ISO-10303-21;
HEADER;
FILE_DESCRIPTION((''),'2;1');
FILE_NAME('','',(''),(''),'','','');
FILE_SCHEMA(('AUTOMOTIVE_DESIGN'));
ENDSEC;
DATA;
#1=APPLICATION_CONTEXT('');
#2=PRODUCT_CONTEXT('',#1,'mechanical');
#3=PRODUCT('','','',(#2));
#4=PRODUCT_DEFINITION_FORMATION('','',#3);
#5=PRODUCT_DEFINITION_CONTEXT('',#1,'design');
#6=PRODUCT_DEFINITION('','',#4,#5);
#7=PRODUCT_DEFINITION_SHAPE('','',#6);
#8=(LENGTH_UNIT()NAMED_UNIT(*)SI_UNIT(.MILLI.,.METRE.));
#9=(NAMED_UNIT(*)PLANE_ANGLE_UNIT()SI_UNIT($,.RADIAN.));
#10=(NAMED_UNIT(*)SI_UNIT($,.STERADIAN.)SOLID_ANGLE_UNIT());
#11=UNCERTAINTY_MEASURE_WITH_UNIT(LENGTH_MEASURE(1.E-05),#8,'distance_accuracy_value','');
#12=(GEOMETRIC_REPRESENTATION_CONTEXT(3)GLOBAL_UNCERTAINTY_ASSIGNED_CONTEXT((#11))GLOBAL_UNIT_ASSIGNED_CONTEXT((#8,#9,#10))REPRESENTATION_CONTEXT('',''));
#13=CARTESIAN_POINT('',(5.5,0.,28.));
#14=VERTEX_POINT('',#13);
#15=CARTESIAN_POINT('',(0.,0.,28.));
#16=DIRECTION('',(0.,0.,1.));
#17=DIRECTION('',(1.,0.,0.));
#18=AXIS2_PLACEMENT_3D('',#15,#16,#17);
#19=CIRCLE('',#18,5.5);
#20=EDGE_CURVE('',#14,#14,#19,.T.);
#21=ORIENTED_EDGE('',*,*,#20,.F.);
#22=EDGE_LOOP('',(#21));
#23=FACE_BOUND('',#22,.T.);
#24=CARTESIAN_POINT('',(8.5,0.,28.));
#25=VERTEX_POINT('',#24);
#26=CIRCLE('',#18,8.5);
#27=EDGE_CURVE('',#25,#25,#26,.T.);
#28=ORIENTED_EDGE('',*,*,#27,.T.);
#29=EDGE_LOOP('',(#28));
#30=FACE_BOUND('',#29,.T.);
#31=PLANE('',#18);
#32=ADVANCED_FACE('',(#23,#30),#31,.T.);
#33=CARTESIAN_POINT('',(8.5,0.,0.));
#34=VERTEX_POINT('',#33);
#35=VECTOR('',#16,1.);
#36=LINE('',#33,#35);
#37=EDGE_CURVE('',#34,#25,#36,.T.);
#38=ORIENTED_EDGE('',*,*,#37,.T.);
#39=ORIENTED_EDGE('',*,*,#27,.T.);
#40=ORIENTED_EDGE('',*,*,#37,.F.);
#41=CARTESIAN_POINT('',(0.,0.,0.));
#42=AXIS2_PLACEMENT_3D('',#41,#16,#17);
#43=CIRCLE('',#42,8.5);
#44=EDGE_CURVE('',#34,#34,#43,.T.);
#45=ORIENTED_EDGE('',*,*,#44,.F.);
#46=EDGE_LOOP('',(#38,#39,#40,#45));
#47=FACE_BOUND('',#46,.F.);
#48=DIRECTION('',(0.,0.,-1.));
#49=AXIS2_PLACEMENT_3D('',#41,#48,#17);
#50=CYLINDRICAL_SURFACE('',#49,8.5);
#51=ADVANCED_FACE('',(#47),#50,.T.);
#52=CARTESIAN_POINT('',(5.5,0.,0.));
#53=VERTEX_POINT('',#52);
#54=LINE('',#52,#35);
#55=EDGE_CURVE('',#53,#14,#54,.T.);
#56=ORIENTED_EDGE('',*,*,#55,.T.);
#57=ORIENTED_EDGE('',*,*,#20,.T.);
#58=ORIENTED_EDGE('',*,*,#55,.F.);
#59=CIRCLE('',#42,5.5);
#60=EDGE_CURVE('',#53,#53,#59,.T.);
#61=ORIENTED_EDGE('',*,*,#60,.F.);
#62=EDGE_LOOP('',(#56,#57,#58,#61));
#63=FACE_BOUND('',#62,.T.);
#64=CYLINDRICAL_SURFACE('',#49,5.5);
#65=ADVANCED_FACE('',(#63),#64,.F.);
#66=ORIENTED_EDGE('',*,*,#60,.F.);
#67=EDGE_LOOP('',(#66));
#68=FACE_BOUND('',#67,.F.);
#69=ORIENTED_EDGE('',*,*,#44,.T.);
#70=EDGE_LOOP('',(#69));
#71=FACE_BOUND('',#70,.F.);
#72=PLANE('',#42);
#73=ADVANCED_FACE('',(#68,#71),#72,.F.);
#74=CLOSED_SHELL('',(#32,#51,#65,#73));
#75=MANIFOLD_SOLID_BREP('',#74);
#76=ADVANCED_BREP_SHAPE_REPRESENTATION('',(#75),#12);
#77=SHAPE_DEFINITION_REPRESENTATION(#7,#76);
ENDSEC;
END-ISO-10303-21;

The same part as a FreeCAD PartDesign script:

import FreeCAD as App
import Part
import Sketcher

V = App.Vector

doc = App.newDocument("Part")
body = doc.addObject("PartDesign::Body", "Body")

# Sketch on XY plane
sketch1 = body.newObject("Sketcher::SketchObject", "Sketch")
sketch1.AttachmentSupport = (doc.getObject("XY_Plane"), [""])
sketch1.MapMode = "FlatFace"
sketch1.addGeometry([
    Part.Circle(V(0, 0, 0), V(0, 0, 1), 8),
    Part.Circle(V(0, 0, 0), V(0, 0, 1), 6),
], False)
sketch1.addConstraint([
    Sketcher.Constraint("Coincident", 0, 3, -1, 1),
    Sketcher.Constraint("Coincident", 1, 3, -1, 1),
    Sketcher.Constraint("Diameter", 0, 17.0),
    Sketcher.Constraint("Diameter", 1, 11.0),
])
pad1 = body.newObject("PartDesign::Pad", "Pad")
pad1.Profile = sketch1
pad1.Length = 28

doc.recompute()
